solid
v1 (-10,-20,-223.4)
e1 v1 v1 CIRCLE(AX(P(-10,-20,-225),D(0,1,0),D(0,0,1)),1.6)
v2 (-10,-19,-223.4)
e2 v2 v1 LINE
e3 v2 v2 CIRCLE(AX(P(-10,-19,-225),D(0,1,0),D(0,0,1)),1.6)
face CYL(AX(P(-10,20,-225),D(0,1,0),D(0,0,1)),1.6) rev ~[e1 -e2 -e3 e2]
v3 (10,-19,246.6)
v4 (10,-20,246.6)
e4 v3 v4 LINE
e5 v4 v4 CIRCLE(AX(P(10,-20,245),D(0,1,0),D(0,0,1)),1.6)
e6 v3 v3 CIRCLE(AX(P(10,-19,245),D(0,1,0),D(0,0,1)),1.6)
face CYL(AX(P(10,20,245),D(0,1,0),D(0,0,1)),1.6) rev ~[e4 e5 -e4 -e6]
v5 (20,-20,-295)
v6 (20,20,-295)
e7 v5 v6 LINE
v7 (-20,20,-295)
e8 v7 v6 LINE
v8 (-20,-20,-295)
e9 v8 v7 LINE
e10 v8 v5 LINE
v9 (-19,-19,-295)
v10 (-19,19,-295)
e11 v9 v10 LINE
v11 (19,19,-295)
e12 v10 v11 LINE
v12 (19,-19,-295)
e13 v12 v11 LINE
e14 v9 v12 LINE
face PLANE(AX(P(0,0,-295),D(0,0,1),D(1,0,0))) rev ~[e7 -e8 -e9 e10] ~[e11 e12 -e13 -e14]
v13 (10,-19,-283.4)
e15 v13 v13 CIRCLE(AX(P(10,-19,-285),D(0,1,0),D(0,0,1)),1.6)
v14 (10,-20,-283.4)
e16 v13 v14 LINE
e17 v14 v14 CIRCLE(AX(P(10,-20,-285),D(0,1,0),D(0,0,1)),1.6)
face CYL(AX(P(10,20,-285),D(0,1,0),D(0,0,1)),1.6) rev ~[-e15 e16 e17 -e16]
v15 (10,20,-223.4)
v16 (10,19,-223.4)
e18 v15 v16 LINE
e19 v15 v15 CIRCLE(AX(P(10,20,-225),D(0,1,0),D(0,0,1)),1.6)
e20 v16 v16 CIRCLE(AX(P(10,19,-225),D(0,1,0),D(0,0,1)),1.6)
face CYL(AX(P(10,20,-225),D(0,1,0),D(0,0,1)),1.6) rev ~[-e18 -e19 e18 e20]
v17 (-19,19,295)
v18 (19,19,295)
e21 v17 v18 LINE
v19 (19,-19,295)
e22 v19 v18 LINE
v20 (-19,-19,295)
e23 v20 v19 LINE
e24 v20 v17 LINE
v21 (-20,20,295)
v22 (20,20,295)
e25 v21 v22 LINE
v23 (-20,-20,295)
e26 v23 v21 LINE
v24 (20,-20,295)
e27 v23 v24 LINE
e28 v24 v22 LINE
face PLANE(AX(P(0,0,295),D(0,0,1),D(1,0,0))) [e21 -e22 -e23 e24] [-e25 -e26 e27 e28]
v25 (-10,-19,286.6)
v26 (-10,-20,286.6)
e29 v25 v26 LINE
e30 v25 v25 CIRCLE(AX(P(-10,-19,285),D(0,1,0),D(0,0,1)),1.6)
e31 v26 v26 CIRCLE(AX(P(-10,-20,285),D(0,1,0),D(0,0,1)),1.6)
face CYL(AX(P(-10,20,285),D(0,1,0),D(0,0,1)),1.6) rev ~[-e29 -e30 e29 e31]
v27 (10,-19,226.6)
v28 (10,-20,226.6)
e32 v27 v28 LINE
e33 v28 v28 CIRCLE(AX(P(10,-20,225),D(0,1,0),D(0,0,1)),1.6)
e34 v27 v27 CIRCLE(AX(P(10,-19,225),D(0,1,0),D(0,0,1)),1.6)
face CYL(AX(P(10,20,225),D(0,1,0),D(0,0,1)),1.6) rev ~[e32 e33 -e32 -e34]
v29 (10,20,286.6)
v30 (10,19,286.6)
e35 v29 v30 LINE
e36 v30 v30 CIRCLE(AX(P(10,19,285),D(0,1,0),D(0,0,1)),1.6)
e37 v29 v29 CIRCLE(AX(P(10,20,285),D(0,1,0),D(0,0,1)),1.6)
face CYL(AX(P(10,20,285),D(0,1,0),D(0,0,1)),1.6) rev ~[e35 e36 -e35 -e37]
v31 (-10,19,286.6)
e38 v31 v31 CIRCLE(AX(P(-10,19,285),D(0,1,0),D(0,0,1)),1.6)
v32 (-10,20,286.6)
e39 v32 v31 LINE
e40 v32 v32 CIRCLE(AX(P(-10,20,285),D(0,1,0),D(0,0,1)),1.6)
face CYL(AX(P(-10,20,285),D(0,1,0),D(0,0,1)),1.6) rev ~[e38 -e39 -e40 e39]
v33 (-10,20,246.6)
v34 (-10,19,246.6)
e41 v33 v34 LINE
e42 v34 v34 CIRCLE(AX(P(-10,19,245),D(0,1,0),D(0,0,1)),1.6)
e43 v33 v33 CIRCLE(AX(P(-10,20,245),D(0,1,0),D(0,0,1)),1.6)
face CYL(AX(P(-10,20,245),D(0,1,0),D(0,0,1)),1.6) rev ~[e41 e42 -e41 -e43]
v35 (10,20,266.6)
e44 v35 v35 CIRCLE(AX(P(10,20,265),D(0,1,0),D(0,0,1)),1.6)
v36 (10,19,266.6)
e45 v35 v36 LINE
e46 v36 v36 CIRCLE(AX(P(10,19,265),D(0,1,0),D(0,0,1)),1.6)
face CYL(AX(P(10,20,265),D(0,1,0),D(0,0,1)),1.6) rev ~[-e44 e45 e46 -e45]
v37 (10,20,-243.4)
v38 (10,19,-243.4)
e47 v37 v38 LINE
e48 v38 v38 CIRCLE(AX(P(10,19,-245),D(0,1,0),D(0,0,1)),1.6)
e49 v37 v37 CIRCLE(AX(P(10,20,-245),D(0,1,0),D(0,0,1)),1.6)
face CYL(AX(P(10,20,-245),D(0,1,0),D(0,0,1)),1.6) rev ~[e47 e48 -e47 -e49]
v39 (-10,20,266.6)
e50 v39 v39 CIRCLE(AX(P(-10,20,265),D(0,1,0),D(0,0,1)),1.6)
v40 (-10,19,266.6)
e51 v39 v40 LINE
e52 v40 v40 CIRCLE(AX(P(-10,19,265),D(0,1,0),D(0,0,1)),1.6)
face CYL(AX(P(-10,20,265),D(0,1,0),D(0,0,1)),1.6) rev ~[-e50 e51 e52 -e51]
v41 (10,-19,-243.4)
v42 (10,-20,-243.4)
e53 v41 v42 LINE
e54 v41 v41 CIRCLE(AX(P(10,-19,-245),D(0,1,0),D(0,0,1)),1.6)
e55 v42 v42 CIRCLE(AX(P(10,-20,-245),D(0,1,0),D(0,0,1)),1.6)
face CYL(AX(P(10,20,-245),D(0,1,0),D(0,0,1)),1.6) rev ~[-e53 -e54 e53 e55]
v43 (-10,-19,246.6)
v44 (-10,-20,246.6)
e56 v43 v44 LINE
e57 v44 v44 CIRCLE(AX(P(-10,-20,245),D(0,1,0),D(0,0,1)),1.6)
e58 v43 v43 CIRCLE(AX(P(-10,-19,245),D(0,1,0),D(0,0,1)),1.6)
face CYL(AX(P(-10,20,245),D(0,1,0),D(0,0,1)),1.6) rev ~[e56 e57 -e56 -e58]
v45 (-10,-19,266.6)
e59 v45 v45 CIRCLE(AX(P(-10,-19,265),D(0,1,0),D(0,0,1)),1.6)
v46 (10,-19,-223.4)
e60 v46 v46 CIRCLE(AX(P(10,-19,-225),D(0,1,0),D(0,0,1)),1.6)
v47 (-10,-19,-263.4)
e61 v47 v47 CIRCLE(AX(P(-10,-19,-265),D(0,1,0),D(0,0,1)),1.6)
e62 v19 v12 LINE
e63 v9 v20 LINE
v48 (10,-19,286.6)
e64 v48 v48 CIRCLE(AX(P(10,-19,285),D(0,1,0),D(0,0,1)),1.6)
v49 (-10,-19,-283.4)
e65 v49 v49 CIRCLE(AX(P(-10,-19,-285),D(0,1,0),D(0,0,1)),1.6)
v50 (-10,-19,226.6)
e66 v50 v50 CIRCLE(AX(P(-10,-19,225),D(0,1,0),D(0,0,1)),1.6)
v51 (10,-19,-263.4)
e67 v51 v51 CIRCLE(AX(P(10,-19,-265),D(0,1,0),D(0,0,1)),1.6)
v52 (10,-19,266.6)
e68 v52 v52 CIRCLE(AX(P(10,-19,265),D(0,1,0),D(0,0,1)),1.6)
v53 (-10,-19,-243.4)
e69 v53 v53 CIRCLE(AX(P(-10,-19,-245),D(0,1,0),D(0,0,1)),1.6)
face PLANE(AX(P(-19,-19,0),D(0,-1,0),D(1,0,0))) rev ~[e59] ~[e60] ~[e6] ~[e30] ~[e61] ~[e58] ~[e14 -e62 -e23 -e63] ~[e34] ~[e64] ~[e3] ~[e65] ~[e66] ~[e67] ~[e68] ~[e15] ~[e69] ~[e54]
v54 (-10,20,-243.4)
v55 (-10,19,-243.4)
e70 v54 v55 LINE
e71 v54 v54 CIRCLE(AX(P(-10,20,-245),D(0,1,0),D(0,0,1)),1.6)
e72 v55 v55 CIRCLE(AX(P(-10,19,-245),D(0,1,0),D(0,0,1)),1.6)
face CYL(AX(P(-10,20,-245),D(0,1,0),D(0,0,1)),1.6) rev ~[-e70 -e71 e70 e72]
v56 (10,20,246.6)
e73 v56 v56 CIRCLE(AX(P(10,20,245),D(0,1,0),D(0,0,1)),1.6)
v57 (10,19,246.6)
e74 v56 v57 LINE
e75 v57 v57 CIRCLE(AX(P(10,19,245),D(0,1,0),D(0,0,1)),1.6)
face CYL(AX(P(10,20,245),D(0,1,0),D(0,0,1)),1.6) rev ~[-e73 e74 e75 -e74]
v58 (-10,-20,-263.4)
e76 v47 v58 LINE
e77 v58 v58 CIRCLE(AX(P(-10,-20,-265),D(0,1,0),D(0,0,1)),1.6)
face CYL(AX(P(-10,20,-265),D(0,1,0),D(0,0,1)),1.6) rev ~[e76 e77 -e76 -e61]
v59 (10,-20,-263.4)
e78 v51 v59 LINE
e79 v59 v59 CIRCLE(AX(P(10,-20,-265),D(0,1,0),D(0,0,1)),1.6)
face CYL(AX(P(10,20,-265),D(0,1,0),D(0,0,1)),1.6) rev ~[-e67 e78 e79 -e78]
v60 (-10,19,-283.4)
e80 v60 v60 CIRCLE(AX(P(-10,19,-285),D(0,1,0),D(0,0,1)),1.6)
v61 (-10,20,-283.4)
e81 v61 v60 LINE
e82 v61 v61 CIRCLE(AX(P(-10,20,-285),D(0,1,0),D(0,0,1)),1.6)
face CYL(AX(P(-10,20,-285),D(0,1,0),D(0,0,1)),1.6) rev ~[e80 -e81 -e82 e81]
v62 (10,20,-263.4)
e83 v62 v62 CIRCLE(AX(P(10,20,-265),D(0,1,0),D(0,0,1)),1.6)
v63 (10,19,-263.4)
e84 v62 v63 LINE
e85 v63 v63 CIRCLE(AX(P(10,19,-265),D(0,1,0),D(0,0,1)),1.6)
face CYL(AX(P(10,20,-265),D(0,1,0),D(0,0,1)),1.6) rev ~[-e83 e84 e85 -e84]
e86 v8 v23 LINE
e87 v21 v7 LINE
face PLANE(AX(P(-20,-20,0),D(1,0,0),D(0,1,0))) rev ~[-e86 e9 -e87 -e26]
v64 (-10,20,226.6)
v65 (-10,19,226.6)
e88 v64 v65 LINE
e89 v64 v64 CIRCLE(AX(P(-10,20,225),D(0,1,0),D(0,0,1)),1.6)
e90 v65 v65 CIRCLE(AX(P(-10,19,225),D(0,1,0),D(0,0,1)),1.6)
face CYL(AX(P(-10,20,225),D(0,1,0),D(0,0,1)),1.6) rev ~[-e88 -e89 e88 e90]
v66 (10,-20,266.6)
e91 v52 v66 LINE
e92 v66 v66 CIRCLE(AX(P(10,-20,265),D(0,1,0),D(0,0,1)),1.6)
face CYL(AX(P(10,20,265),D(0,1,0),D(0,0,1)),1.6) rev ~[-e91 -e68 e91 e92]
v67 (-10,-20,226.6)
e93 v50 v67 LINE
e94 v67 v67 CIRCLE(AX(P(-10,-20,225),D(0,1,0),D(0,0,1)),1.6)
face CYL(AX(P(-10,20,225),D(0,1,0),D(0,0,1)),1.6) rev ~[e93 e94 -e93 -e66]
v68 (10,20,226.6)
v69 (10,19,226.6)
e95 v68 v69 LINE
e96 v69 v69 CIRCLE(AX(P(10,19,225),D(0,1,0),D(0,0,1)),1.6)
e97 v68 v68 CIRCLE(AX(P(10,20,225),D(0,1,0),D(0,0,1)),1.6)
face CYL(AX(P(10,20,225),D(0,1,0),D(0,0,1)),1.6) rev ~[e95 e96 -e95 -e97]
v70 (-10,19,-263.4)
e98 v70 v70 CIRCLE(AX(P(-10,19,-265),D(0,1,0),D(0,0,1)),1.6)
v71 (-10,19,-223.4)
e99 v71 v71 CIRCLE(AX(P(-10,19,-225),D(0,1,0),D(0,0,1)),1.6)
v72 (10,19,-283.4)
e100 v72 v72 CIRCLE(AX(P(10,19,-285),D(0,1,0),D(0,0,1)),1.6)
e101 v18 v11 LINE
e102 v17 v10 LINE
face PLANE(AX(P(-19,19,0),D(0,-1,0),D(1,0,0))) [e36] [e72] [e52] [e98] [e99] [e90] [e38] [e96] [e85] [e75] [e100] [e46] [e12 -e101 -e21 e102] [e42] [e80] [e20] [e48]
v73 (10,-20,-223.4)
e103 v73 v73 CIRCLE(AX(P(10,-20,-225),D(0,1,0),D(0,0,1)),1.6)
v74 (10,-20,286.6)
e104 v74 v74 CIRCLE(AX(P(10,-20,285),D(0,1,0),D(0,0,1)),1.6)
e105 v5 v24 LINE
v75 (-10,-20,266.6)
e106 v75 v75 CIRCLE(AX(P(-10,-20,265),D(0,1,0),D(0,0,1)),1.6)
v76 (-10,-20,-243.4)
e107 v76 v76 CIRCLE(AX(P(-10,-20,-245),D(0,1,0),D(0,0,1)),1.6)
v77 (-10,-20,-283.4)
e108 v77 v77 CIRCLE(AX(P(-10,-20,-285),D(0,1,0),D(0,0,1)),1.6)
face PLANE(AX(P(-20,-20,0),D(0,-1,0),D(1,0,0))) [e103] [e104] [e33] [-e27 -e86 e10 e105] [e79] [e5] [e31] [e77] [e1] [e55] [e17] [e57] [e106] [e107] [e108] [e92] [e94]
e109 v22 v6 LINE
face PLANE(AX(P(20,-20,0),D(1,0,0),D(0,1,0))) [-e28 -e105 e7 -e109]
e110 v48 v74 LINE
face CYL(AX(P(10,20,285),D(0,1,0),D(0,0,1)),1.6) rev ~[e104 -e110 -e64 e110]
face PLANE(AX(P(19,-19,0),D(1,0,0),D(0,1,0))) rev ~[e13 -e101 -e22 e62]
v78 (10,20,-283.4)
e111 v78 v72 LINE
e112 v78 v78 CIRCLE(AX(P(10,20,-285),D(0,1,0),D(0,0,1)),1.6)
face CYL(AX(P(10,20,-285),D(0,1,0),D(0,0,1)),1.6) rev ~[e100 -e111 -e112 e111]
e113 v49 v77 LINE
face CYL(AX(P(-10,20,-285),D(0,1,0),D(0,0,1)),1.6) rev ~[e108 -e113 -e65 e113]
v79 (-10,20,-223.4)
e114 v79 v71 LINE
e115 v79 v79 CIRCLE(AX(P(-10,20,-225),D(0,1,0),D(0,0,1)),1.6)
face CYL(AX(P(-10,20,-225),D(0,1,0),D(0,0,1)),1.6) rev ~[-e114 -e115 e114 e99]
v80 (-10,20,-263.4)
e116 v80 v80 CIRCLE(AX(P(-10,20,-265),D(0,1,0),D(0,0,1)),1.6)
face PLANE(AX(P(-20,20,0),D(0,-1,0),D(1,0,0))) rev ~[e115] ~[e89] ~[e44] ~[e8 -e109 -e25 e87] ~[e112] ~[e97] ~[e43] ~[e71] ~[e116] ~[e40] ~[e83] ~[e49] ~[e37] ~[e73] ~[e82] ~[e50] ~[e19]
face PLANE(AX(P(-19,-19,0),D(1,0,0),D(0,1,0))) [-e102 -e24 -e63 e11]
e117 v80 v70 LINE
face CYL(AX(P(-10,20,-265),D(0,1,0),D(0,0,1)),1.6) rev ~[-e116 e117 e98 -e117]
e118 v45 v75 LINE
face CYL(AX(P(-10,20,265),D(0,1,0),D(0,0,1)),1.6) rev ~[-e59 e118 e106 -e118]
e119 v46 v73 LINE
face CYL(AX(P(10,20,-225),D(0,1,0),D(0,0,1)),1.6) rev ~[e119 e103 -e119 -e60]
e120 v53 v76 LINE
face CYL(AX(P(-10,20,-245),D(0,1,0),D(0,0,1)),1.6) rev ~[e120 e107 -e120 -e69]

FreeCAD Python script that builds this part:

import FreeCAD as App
import Part
import Sketcher
Q = App.Units.Quantity

doc = App.newDocument("Part")
body = doc.addObject("PartDesign::Body", "Body")

# Sketch on XY plane
sketch1 = body.newObject("Sketcher::SketchObject", "Sketch")
sketch1.AttachmentSupport = (doc.getObject("XY_Plane"), [""])
sketch1.MapMode = "FlatFace"
sketch1.addGeometry([
    Part.LineSegment(App.Vector(-20, 20, 0), App.Vector(-20, -20, 0)),  # 0
    Part.LineSegment(App.Vector(-20, -20, 0), App.Vector(20, -20, 0)),  # 1
    Part.LineSegment(App.Vector(20, -20, 0), App.Vector(20, 20, 0)),  # 2
    Part.LineSegment(App.Vector(20, 20, 0), App.Vector(-20, 20, 0)),  # 3
    Part.LineSegment(App.Vector(19, -19, 0), App.Vector(-19, -19, 0)),  # 4
    Part.LineSegment(App.Vector(-19, -19, 0), App.Vector(-19, 19, 0)),  # 5
    Part.LineSegment(App.Vector(-19, 19, 0), App.Vector(19, 19, 0)),  # 6
    Part.LineSegment(App.Vector(19, 19, 0), App.Vector(19, -19, 0)),  # 7
], False)
sketch1.addConstraint([
    Sketcher.Constraint("Coincident", 0, 2, 1, 1),
    Sketcher.Constraint("Coincident", 1, 2, 2, 1),
    Sketcher.Constraint("Coincident", 2, 2, 3, 1),
    Sketcher.Constraint("Coincident", 3, 2, 0, 1),
    Sketcher.Constraint("Coincident", 4, 2, 5, 1),
    Sketcher.Constraint("Coincident", 5, 2, 6, 1),
    Sketcher.Constraint("Coincident", 6, 2, 7, 1),
    Sketcher.Constraint("Coincident", 7, 2, 4, 1),
    Sketcher.Constraint("Vertical", 0),
    Sketcher.Constraint("Horizontal", 1),
    Sketcher.Constraint("Vertical", 2),
    Sketcher.Constraint("Horizontal", 3),
    Sketcher.Constraint("Horizontal", 4),
    Sketcher.Constraint("Vertical", 5),
    Sketcher.Constraint("Horizontal", 6),
    Sketcher.Constraint("Vertical", 7),
    Sketcher.Constraint("Symmetric", 0, 2, 2, 2, -1, 1),
    Sketcher.Constraint("Symmetric", 4, 2, 6, 2, -1, 1),
    Sketcher.Constraint("Equal", 3, 0),
    Sketcher.Constraint("Equal", 6, 5),
    Sketcher.Constraint("DistanceX", 1, 1, 1, 2, Q("40 mm")),
    Sketcher.Constraint("DistanceX", 4, 2, 4, 1, Q("38 mm")),
])
pad1 = body.newObject("PartDesign::Pad", "Pad")
pad1.Profile = sketch1
pad1.Length = 590
pad1.Midplane = True

# Sketch on XZ plane
sketch2 = body.newObject("Sketcher::SketchObject", "Sketch001")
sketch2.AttachmentSupport = (doc.getObject("XZ_Plane"), [""])
sketch2.MapMode = "FlatFace"
sketch2.AttachmentOffset = App.Placement(App.Vector(0, 0, -20), App.Rotation())
sketch2.addGeometry([
    Part.Circle(App.Vector(-10, 285, 0), App.Vector(0, 0, 1), 1.6),  # 0
    Part.Circle(App.Vector(10, 285, 0), App.Vector(0, 0, 1), 1.6),  # 1
    Part.Circle(App.Vector(-10, 265, 0), App.Vector(0, 0, 1), 1.6),  # 2
    Part.Circle(App.Vector(10, 265, 0), App.Vector(0, 0, 1), 1.6),  # 3
    Part.Circle(App.Vector(-10, 245, 0), App.Vector(0, 0, 1), 1.6),  # 4
    Part.Circle(App.Vector(10, 245, 0), App.Vector(0, 0, 1), 1.6),  # 5
    Part.Circle(App.Vector(-10, 225, 0), App.Vector(0, 0, 1), 1.6),  # 6
    Part.Circle(App.Vector(10, 225, 0), App.Vector(0, 0, 1), 1.6),  # 7
    Part.Circle(App.Vector(10, -225, 0), App.Vector(0, 0, 1), 1.6),  # 8
    Part.Circle(App.Vector(-10, -225, 0), App.Vector(0, 0, 1), 1.6),  # 9
    Part.Circle(App.Vector(10, -245, 0), App.Vector(0, 0, 1), 1.6),  # 10
    Part.Circle(App.Vector(-10, -245, 0), App.Vector(0, 0, 1), 1.6),  # 11
    Part.Circle(App.Vector(10, -265, 0), App.Vector(0, 0, 1), 1.6),  # 12
    Part.Circle(App.Vector(-10, -265, 0), App.Vector(0, 0, 1), 1.6),  # 13
    Part.Circle(App.Vector(10, -285, 0), App.Vector(0, 0, 1), 1.6),  # 14
    Part.Circle(App.Vector(-10, -285, 0), App.Vector(0, 0, 1), 1.6),  # 15
], False)
sketch2.addConstraint([
    Sketcher.Constraint("Equal", 0, 1),
    Sketcher.Constraint("Equal", 1, 2),
    Sketcher.Constraint("Equal", 2, 3),
    Sketcher.Constraint("Equal", 3, 4),
    Sketcher.Constraint("Equal", 4, 5),
    Sketcher.Constraint("Equal", 5, 6),
    Sketcher.Constraint("Equal", 6, 7),
    Sketcher.Constraint("Equal", 7, 8),
    Sketcher.Constraint("Equal", 8, 9),
    Sketcher.Constraint("Equal", 9, 10),
    Sketcher.Constraint("Equal", 10, 11),
    Sketcher.Constraint("Equal", 11, 12),
    Sketcher.Constraint("Equal", 12, 13),
    Sketcher.Constraint("Equal", 13, 14),
    Sketcher.Constraint("Equal", 14, 15),
    Sketcher.Constraint("Symmetric", 6, 3, 8, 3, -1, 1),
    Sketcher.Constraint("Symmetric", 7, 3, 9, 3, -1, 1),
    Sketcher.Constraint("Symmetric", 4, 3, 10, 3, -1, 1),
    Sketcher.Constraint("Symmetric", 5, 3, 11, 3, -1, 1),
    Sketcher.Constraint("Symmetric", 2, 3, 12, 3, -1, 1),
    Sketcher.Constraint("Symmetric", 3, 3, 13, 3, -1, 1),
    Sketcher.Constraint("Symmetric", 0, 3, 14, 3, -1, 1),
    Sketcher.Constraint("Symmetric", 1, 3, 15, 3, -1, 1),
    Sketcher.Constraint("Symmetric", 0, 3, 1, 3, -2),
    Sketcher.Constraint("Symmetric", 2, 3, 3, 3, -2),
    Sketcher.Constraint("Symmetric", 4, 3, 5, 3, -2),
    Sketcher.Constraint("Symmetric", 6, 3, 7, 3, -2),
    Sketcher.Constraint("Vertical", 0, 3, 2, 3),
    Sketcher.Constraint("Vertical", 2, 3, 4, 3),
    Sketcher.Constraint("Vertical", 4, 3, 6, 3),
    Sketcher.Constraint("Diameter", 0, Q("3.2 mm")),
    Sketcher.Constraint("DistanceX", 0, 3, -1, 1, Q("10 mm")),
    Sketcher.Constraint("DistanceY", -1, 1, 0, 3, Q("285 mm")),
    Sketcher.Constraint("DistanceY", -1, 1, 2, 3, Q("265 mm")),
    Sketcher.Constraint("DistanceY", -1, 1, 4, 3, Q("245 mm")),
    Sketcher.Constraint("DistanceY", -1, 1, 6, 3, Q("225 mm")),
])
pocket1 = body.newObject("PartDesign::Pocket", "Pocket")
pocket1.Profile = sketch2
pocket1.Type = "ThroughAll"
pocket1.Reversed = True

doc.recompute()
